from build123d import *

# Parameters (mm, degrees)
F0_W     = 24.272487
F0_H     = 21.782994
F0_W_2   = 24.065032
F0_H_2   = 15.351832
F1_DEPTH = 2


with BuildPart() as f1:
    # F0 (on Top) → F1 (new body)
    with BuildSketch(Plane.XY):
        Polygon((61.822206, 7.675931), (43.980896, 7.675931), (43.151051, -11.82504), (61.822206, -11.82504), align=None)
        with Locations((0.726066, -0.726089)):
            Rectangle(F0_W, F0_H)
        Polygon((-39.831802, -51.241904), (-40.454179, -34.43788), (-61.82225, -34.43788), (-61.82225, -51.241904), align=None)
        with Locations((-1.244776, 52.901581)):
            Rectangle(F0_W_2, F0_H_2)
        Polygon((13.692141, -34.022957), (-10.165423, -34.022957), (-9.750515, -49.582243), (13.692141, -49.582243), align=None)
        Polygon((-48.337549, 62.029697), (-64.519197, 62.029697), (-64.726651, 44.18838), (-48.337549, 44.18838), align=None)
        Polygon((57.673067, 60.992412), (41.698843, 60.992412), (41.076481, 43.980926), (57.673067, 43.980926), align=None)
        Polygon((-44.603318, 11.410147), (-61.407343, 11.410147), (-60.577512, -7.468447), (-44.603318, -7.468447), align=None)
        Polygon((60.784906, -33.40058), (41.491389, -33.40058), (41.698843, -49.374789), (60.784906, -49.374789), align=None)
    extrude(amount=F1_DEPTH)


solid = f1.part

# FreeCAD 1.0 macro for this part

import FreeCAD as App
import Part
import Sketcher

V = App.Vector
Q = App.Units.Quantity

doc = App.newDocument("Part")
body = doc.addObject("PartDesign::Body", "Body")
body.AllowCompound = True

# Sketch on XY plane
sketch1 = doc.addObject("Sketcher::SketchObject", "Sketch")
body.addObject(sketch1)
sketch1.AttachmentSupport = (doc.XY_Plane, [""])
sketch1.MapMode = "FlatFace"
sketch1.addGeometry([
    Part.LineSegment(V(61.822206, 7.675931, 0), V(43.980896, 7.675931, 0)),  # 0
    Part.LineSegment(V(43.980896, 7.675931, 0), V(43.151051, -11.82504, 0)),  # 1
    Part.LineSegment(V(43.151051, -11.82504, 0), V(61.822206, -11.82504, 0)),  # 2
    Part.LineSegment(V(61.822206, -11.82504, 0), V(61.822206, 7.675931, 0)),  # 3
    Part.LineSegment(V(-11.410177, 10.165408, 0), V(-11.410177, -11.617586, 0)),  # 4
    Part.LineSegment(V(-11.410177, -11.617586, 0), V(12.86231, -11.617586, 0)),  # 5
    Part.LineSegment(V(12.86231, -11.617586, 0), V(12.86231, 10.165408, 0)),  # 6
    Part.LineSegment(V(12.86231, 10.165408, 0), V(-11.410177, 10.165408, 0)),  # 7
    Part.LineSegment(V(-39.831802, -51.241904, 0), V(-40.454179, -34.43788, 0)),  # 8
    Part.LineSegment(V(-40.454179, -34.43788, 0), V(-61.82225, -34.43788, 0)),  # 9
    Part.LineSegment(V(-61.82225, -34.43788, 0), V(-61.82225, -51.241904, 0)),  # 10
    Part.LineSegment(V(-61.82225, -51.241904, 0), V(-39.831802, -51.241904, 0)),  # 11
    Part.LineSegment(V(-13.277292, 60.577497, 0), V(-13.277292, 45.225665, 0)),  # 12
    Part.LineSegment(V(-13.277292, 45.225665, 0), V(10.78774, 45.225665, 0)),  # 13
    Part.LineSegment(V(10.78774, 45.225665, 0), V(10.78774, 60.577497, 0)),  # 14
    Part.LineSegment(V(10.78774, 60.577497, 0), V(-13.277292, 60.577497, 0)),  # 15
    Part.LineSegment(V(13.692141, -34.022957, 0), V(-10.165423, -34.022957, 0)),  # 16
    Part.LineSegment(V(-10.165423, -34.022957, 0), V(-9.750515, -49.582243, 0)),  # 17
    Part.LineSegment(V(-9.750515, -49.582243, 0), V(13.692141, -49.582243, 0)),  # 18
    Part.LineSegment(V(13.692141, -49.582243, 0), V(13.692141, -34.022957, 0)),  # 19
    Part.LineSegment(V(-48.337549, 62.029697, 0), V(-64.519197, 62.029697, 0)),  # 20
    Part.LineSegment(V(-64.519197, 62.029697, 0), V(-64.726651, 44.18838, 0)),  # 21
    Part.LineSegment(V(-64.726651, 44.18838, 0), V(-48.337549, 44.18838, 0)),  # 22
    Part.LineSegment(V(-48.337549, 44.18838, 0), V(-48.337549, 62.029697, 0)),  # 23
    Part.LineSegment(V(57.673067, 60.992412, 0), V(41.698843, 60.992412, 0)),  # 24
    Part.LineSegment(V(41.698843, 60.992412, 0), V(41.076481, 43.980926, 0)),  # 25
    Part.LineSegment(V(41.076481, 43.980926, 0), V(57.673067, 43.980926, 0)),  # 26
    Part.LineSegment(V(57.673067, 43.980926, 0), V(57.673067, 60.992412, 0)),  # 27
    Part.LineSegment(V(-44.603318, 11.410147, 0), V(-61.407343, 11.410147, 0)),  # 28
    Part.LineSegment(V(-61.407343, 11.410147, 0), V(-60.577512, -7.468447, 0)),  # 29
    Part.LineSegment(V(-60.577512, -7.468447, 0), V(-44.603318, -7.468447, 0)),  # 30
    Part.LineSegment(V(-44.603318, -7.468447, 0), V(-44.603318, 11.410147, 0)),  # 31
    Part.LineSegment(V(60.784906, -33.40058, 0), V(41.491389, -33.40058, 0)),  # 32
    Part.LineSegment(V(41.491389, -33.40058, 0), V(41.698843, -49.374789, 0)),  # 33
    Part.LineSegment(V(41.698843, -49.374789, 0), V(60.784906, -49.374789, 0)),  # 34
    Part.LineSegment(V(60.784906, -49.374789, 0), V(60.784906, -33.40058, 0)),  # 35
], False)
sketch1.addConstraint([
    Sketcher.Constraint("Coincident", 0, 2, 1, 1),
    Sketcher.Constraint("Coincident", 1, 2, 2, 1),
    Sketcher.Constraint("Coincident", 2, 2, 3, 1),
    Sketcher.Constraint("Coincident", 3, 2, 0, 1),
    Sketcher.Constraint("Coincident", 4, 2, 5, 1),
    Sketcher.Constraint("Coincident", 5, 2, 6, 1),
    Sketcher.Constraint("Coincident", 6, 2, 7, 1),
    Sketcher.Constraint("Coincident", 7, 2, 4, 1),
    Sketcher.Constraint("Coincident", 8, 2, 9, 1),
    Sketcher.Constraint("Coincident", 9, 2, 10, 1),
    Sketcher.Constraint("Coincident", 10, 2, 11, 1),
    Sketcher.Constraint("Coincident", 11, 2, 8, 1),
    Sketcher.Constraint("Coincident", 12, 2, 13, 1),
    Sketcher.Constraint("Coincident", 13, 2, 14, 1),
    Sketcher.Constraint("Coincident", 14, 2, 15, 1),
    Sketcher.Constraint("Coincident", 15, 2, 12, 1),
    Sketcher.Constraint("Coincident", 16, 2, 17, 1),
    Sketcher.Constraint("Coincident", 17, 2, 18, 1),
    Sketcher.Constraint("Coincident", 18, 2, 19, 1),
    Sketcher.Constraint("Coincident", 19, 2, 16, 1),
    Sketcher.Constraint("Coincident", 20, 2, 21, 1),
    Sketcher.Constraint("Coincident", 21, 2, 22, 1),
    Sketcher.Constraint("Coincident", 22, 2, 23, 1),
    Sketcher.Constraint("Coincident", 23, 2, 20, 1),
    Sketcher.Constraint("Coincident", 24, 2, 25, 1),
    Sketcher.Constraint("Coincident", 25, 2, 26, 1),
    Sketcher.Constraint("Coincident", 26, 2, 27, 1),
    Sketcher.Constraint("Coincident", 27, 2, 24, 1),
    Sketcher.Constraint("Coincident", 28, 2, 29, 1),
    Sketcher.Constraint("Coincident", 29, 2, 30, 1),
    Sketcher.Constraint("Coincident", 30, 2, 31, 1),
    Sketcher.Constraint("Coincident", 31, 2, 28, 1),
    Sketcher.Constraint("Coincident", 32, 2, 33, 1),
    Sketcher.Constraint("Coincident", 33, 2, 34, 1),
    Sketcher.Constraint("Coincident", 34, 2, 35, 1),
    Sketcher.Constraint("Coincident", 35, 2, 32, 1),
    Sketcher.Constraint("Horizontal", 0),
    Sketcher.Constraint("Horizontal", 2),
    Sketcher.Constraint("Vertical", 3),
    Sketcher.Constraint("Vertical", 4),
    Sketcher.Constraint("Horizontal", 5),
    Sketcher.Constraint("Vertical", 6),
    Sketcher.Constraint("Horizontal", 7),
    Sketcher.Constraint("Horizontal", 9),
    Sketcher.Constraint("Vertical", 10),
    Sketcher.Constraint("Horizontal", 11),
    Sketcher.Constraint("Vertical", 12),
    Sketcher.Constraint("Horizontal", 13),
    Sketcher.Constraint("Vertical", 14),
    Sketcher.Constraint("Horizontal", 15),
    Sketcher.Constraint("Horizontal", 16),
    Sketcher.Constraint("Horizontal", 18),
    Sketcher.Constraint("Vertical", 19),
    Sketcher.Constraint("Horizontal", 20),
    Sketcher.Constraint("Horizontal", 22),
    Sketcher.Constraint("Vertical", 23),
    Sketcher.Constraint("Horizontal", 24),
    Sketcher.Constraint("Horizontal", 26),
    Sketcher.Constraint("Vertical", 27),
    Sketcher.Constraint("Horizontal", 28),
    Sketcher.Constraint("Horizontal", 30),
    Sketcher.Constraint("Vertical", 31),
    Sketcher.Constraint("Horizontal", 32),
    Sketcher.Constraint("Horizontal", 34),
    Sketcher.Constraint("Vertical", 35),
    Sketcher.Constraint("Vertical", 24, 2, 33, 2),
    Sketcher.Constraint("Equal", 28, 10),
    Sketcher.Constraint("DistanceX", 8, 2, 4, 2, Q("29.044002 mm")),
    Sketcher.Constraint("DistanceX", 0, 2, 0, 1, Q("17.84131 mm")),
    Sketcher.Constraint("DistanceX", 9, 2, 9, 1, Q("21.368071 mm")),
    Sketcher.Constraint("DistanceX", 13, 1, 13, 2, Q("24.065032 mm")),
    Sketcher.Constraint("DistanceX", 20, 2, 20, 1, Q("16.181648 mm")),
    Sketcher.Constraint("DistanceY", 3, 1, 3, 2, Q("19.500971 mm")),
    Sketcher.Constraint("DistanceY", 35, 1, 35, 2, Q("15.974209 mm")),
    Sketcher.Constraint("DistanceX", 12, 2, 6, 2, Q("26.139601 mm")),
    Sketcher.Constraint("DistanceY", 15, 2, 20, 2, Q("1.4522 mm")),
    Sketcher.Constraint("DistanceX", 18, 2, 33, 2, Q("28.006702 mm")),
    Sketcher.Constraint("DistanceX", 34, 2, 2, 2, Q("1.0373 mm")),
    Sketcher.Constraint("Distance", 1, Q("19.51862 mm")),
    Sketcher.Constraint("DistanceX", 5, 1, 5, 2, Q("24.272487 mm")),
    Sketcher.Constraint("DistanceX", 11, 1, 11, 2, Q("21.990448 mm")),
    Sketcher.Constraint("DistanceX", 16, 2, 16, 1, Q("23.857564 mm")),
    Sketcher.Constraint("DistanceX", 18, 1, 18, 2, Q("23.442656 mm")),
    Sketcher.Constraint("DistanceX", 22, 1, 22, 2, Q("16.389102 mm")),
    Sketcher.Constraint("DistanceX", 24, 2, 24, 1, Q("15.974224 mm")),
    Sketcher.Constraint("DistanceX", 26, 1, 26, 2, Q("16.596586 mm")),
    Sketcher.Constraint("DistanceX", 28, 2, 28, 1, Q("16.804025 mm")),
    Sketcher.Constraint("DistanceX", 30, 1, 30, 2, Q("15.974194 mm")),
    Sketcher.Constraint("DistanceX", 32, 2, 32, 1, Q("19.293517 mm")),
    Sketcher.Constraint("DistanceX", 34, 1, 34, 2, Q("19.086063 mm")),
    Sketcher.Constraint("DistanceY", 4, 2, 4, 1, Q("21.782994 mm")),
    Sketcher.Constraint("DistanceY", 12, 2, 12, 1, Q("15.351832 mm")),
    Sketcher.Constraint("DistanceY", 19, 1, 19, 2, Q("15.559286 mm")),
    Sketcher.Constraint("DistanceY", 23, 1, 23, 2, Q("17.841317 mm")),
    Sketcher.Constraint("DistanceY", 27, 1, 27, 2, Q("17.011486 mm")),
    Sketcher.Constraint("DistanceY", 31, 1, 31, 2, Q("18.878594 mm")),
    Sketcher.Constraint("DistanceY", -1, 1, 0, 2, Q("7.675931 mm")),
    Sketcher.Constraint("DistanceX", -1, 1, 1, 2, Q("43.151051 mm")),
    Sketcher.Constraint("DistanceX", -1, 1, 5, 2, Q("12.86231 mm")),
    Sketcher.Constraint("DistanceY", 8, 2, -1, 1, Q("34.43788 mm")),
    Sketcher.Constraint("DistanceX", 21, 2, -1, 1, Q("64.726651 mm")),
    Sketcher.Constraint("DistanceY", -1, 1, 21, 2, Q("44.18838 mm")),
    Sketcher.Constraint("DistanceX", 30, 2, -1, 1, Q("44.603318 mm")),
    Sketcher.Constraint("DistanceY", 32, 2, -1, 1, Q("33.40058 mm")),
    Sketcher.Constraint("DistanceY", 1, 2, 6, 2, Q("21.990448 mm")),
    Sketcher.Constraint("DistanceY", 16, 2, 4, 2, Q("22.405371 mm")),
    Sketcher.Constraint("DistanceY", 0, 2, 24, 2, Q("53.316481 mm")),
    Sketcher.Constraint("DistanceY", 7, 2, 28, 2, Q("1.244739 mm")),
])
pad1 = doc.addObject("PartDesign::Pad", "Pad")
body.addObject(pad1)
pad1.Profile = sketch1
pad1.Length = 2

doc.recompute()
